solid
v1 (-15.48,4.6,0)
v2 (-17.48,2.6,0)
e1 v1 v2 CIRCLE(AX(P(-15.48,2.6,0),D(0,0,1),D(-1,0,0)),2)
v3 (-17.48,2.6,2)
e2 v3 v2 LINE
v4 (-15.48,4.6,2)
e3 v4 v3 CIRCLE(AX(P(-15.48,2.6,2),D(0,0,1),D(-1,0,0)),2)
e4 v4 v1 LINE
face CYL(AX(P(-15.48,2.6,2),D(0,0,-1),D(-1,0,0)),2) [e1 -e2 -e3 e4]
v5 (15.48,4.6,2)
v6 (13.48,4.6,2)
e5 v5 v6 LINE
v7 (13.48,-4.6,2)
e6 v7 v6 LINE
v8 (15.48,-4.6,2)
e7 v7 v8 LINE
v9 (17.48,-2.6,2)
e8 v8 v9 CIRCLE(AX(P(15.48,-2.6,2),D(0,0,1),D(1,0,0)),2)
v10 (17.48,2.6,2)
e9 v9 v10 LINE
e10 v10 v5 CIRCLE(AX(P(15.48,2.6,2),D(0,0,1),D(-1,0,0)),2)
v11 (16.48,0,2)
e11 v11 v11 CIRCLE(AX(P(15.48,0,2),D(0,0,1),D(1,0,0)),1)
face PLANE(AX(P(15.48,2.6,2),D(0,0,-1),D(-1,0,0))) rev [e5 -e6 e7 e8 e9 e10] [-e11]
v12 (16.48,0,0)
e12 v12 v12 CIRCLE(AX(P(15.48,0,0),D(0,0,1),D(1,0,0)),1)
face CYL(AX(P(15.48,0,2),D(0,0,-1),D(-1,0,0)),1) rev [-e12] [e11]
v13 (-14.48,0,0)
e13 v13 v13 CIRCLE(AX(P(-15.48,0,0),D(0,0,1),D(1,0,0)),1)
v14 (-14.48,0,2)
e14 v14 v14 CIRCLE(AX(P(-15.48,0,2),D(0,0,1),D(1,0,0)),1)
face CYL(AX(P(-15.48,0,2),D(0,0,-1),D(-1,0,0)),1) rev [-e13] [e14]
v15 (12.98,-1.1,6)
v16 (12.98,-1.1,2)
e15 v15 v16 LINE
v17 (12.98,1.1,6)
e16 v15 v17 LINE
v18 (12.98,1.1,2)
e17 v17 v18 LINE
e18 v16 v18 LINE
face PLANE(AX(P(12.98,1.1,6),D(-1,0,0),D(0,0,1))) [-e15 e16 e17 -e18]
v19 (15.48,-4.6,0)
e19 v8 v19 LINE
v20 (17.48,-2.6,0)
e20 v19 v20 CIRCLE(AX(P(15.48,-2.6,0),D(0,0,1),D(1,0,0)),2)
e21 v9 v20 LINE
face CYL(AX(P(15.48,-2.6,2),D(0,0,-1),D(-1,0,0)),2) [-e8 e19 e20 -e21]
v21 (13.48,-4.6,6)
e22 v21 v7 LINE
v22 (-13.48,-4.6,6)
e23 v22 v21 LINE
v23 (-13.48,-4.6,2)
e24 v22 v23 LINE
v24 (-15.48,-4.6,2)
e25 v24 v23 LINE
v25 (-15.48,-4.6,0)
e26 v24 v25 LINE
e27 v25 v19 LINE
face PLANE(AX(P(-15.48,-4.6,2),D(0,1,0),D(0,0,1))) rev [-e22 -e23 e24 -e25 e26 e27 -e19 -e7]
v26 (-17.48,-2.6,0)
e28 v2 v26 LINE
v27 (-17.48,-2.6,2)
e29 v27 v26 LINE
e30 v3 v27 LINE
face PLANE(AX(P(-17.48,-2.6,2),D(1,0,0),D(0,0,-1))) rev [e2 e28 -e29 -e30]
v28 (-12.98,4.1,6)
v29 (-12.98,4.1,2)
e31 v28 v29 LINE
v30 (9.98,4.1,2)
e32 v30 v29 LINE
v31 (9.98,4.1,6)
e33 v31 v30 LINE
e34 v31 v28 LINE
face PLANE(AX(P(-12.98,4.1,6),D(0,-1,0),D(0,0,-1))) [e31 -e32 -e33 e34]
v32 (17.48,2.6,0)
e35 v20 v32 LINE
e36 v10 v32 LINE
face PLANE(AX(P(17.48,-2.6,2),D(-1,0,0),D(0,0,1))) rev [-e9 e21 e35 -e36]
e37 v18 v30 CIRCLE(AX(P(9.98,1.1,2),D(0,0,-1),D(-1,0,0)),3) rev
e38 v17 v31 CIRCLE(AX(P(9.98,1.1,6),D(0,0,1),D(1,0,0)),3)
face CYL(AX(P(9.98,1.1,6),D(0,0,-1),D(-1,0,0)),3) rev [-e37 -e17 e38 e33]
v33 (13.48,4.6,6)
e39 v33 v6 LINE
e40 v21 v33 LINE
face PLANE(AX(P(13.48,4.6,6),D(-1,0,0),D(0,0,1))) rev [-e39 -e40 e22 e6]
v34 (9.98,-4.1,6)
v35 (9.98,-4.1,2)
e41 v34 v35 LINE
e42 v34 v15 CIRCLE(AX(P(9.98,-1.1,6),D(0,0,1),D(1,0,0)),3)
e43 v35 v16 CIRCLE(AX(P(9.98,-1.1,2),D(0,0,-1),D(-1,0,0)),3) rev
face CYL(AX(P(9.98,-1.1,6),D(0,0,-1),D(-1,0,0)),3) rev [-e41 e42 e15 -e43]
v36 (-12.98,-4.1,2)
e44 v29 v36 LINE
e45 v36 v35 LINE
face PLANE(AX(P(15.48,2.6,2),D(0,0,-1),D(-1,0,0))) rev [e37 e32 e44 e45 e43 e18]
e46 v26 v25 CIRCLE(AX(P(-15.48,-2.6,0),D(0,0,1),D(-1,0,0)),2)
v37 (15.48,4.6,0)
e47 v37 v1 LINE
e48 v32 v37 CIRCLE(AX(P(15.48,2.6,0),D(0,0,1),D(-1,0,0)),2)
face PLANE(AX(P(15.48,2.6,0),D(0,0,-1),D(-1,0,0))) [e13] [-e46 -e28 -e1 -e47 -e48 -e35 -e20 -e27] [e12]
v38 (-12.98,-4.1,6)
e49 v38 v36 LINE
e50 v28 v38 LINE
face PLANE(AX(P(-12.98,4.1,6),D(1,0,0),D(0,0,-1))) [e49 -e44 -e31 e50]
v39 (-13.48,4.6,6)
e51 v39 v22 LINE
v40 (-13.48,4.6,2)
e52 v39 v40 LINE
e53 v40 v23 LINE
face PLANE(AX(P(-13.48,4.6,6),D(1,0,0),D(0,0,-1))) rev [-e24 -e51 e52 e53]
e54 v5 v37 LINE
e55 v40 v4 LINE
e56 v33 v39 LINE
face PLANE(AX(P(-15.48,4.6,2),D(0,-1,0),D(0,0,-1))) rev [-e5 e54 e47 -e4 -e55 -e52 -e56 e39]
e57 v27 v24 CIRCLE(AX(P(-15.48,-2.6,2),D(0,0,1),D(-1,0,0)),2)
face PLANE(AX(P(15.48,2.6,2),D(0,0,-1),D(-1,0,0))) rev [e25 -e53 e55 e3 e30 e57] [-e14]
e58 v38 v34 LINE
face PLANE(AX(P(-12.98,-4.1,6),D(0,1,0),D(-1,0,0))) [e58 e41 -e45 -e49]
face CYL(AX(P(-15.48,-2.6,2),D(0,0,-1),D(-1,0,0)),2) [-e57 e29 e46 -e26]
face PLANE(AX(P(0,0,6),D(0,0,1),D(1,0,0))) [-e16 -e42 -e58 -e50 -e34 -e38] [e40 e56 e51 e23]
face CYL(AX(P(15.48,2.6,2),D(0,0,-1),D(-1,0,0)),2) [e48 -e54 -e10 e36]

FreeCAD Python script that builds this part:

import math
import FreeCAD as App
import Part
import Sketcher

V = App.Vector
Q = App.Units.Quantity

doc = App.newDocument("Part")
body = doc.addObject("PartDesign::Body", "Body")

# Sketch on XY plane
sketch1 = body.newObject("Sketcher::SketchObject", "Sketch")
sketch1.AttachmentSupport = (doc.getObject("XY_Plane"), [""])
sketch1.MapMode = "FlatFace"
sketch1.addGeometry(Part.LineSegment(V(-15.5, -4.6, 0), V(15.5, -4.6, 0)), False)
sketch1.addGeometry(Part.ArcOfCircle(Part.Circle(V(15.5, -2.6, 0), V(0, 0, 1), 2), math.radians(-90), math.radians(0)), False)
sketch1.addGeometry(Part.LineSegment(V(17.5, -2.6, 0), V(17.5, 2.6, 0)), False)
sketch1.addGeometry(Part.ArcOfCircle(Part.Circle(V(15.5, 2.6, 0), V(0, 0, 1), 2), math.radians(0), math.radians(90)), False)
sketch1.addGeometry(Part.LineSegment(V(15.5, 4.6, 0), V(-15.5, 4.6, 0)), False)
sketch1.addGeometry(Part.ArcOfCircle(Part.Circle(V(-15.5, 2.6, 0), V(0, 0, 1), 2), math.radians(90), math.radians(180)), False)
sketch1.addGeometry(Part.LineSegment(V(-17.5, 2.6, 0), V(-17.5, -2.6, 0)), False)
sketch1.addGeometry(Part.ArcOfCircle(Part.Circle(V(-15.5, -2.6, 0), V(0, 0, 1), 2), math.radians(-180), math.radians(-90)), False)
sketch1.addGeometry(Part.Circle(V(-15.5, 0, 0), V(0, 0, 1), 1), False)
sketch1.addGeometry(Part.Circle(V(15.5, 0, 0), V(0, 0, 1), 1), False)
sketch1.addConstraint(Sketcher.Constraint("Tangent", 0, 2, 1, 1))
sketch1.addConstraint(Sketcher.Constraint("Tangent", 1, 2, 2, 1))
sketch1.addConstraint(Sketcher.Constraint("Tangent", 2, 2, 3, 1))
sketch1.addConstraint(Sketcher.Constraint("Tangent", 3, 2, 4, 1))
sketch1.addConstraint(Sketcher.Constraint("Tangent", 4, 2, 5, 1))
sketch1.addConstraint(Sketcher.Constraint("Tangent", 5, 2, 6, 1))
sketch1.addConstraint(Sketcher.Constraint("Tangent", 6, 2, 7, 1))
sketch1.addConstraint(Sketcher.Constraint("Tangent", 7, 2, 0, 1))
sketch1.addConstraint(Sketcher.Constraint("Horizontal", 0))
sketch1.addConstraint(Sketcher.Constraint("Vertical", 2))
sketch1.addConstraint(Sketcher.Constraint("Horizontal", 4))
sketch1.addConstraint(Sketcher.Constraint("Vertical", 6))
sketch1.addConstraint(Sketcher.Constraint("Equal", 1, 3))
sketch1.addConstraint(Sketcher.Constraint("Equal", 3, 5))
sketch1.addConstraint(Sketcher.Constraint("Equal", 5, 7))
sketch1.addConstraint(Sketcher.Constraint("Equal", 8, 9))
sketch1.addConstraint(Sketcher.Constraint("Symmetric", 1, 3, 5, 3, -1, 1))
sketch1.addConstraint(Sketcher.Constraint("Symmetric", 8, 3, 9, 3, -1, 1))
sketch1.addConstraint(Sketcher.Constraint("PointOnObject", 8, 3, -1))
sketch1.addConstraint(Sketcher.Constraint("Vertical", 7, 3, 8, 3))
sketch1.addConstraint(Sketcher.Constraint("Diameter", 8, Q("2 mm")))
sketch1.addConstraint(Sketcher.Constraint("Radius", 1, Q("2 mm")))
sketch1.addConstraint(Sketcher.Constraint("DistanceY", 2, 1, 2, 2, Q("5.2 mm")))
sketch1.addConstraint(Sketcher.Constraint("DistanceX", 0, 1, 0, 2, Q("30.96 mm")))
pad1 = body.newObject("PartDesign::Pad", "Pad")
pad1.Profile = sketch1
pad1.Length = 2

# Sketch on XY plane
sketch2 = body.newObject("Sketcher::SketchObject", "Sketch001")
sketch2.AttachmentSupport = (doc.getObject("XY_Plane"), [""])
sketch2.MapMode = "FlatFace"
sketch2.addGeometry(Part.LineSegment(V(-13.5, 4.6, 0), V(-13.5, -4.6, 0)), False)
sketch2.addGeometry(Part.LineSegment(V(-13.5, -4.6, 0), V(13.5, -4.6, 0)), False)
sketch2.addGeometry(Part.LineSegment(V(13.5, -4.6, 0), V(13.5, 4.6, 0)), False)
sketch2.addGeometry(Part.LineSegment(V(13.5, 4.6, 0), V(-13.5, 4.6, 0)), False)
sketch2.addGeometry(Part.LineSegment(V(-13, -4.1, 0), V(-13, 4.1, 0)), False)
sketch2.addGeometry(Part.LineSegment(V(-13, 4.1, 0), V(10, 4.1, 0)), False)
sketch2.addGeometry(Part.ArcOfCircle(Part.Circle(V(10, 1.1, 0), V(0, 0, 1), 3), math.radians(0), math.radians(90)), False)
sketch2.addGeometry(Part.LineSegment(V(13, 1.1, 0), V(13, -1.1, 0)), False)
sketch2.addGeometry(Part.ArcOfCircle(Part.Circle(V(10, -1.1, 0), V(0, 0, 1), 3), math.radians(-90), math.radians(0)), False)
sketch2.addGeometry(Part.LineSegment(V(10, -4.1, 0), V(-13, -4.1, 0)), False)
sketch2.addConstraint(Sketcher.Constraint("Coincident", 0, 2, 1, 1))
sketch2.addConstraint(Sketcher.Constraint("Coincident", 1, 2, 2, 1))
sketch2.addConstraint(Sketcher.Constraint("Coincident", 2, 2, 3, 1))
sketch2.addConstraint(Sketcher.Constraint("Coincident", 3, 2, 0, 1))
sketch2.addConstraint(Sketcher.Constraint("Coincident", 4, 2, 5, 1))
sketch2.addConstraint(Sketcher.Constraint("Tangent", 5, 2, 6, 2))
sketch2.addConstraint(Sketcher.Constraint("Tangent", 6, 1, 7, 1))
sketch2.addConstraint(Sketcher.Constraint("Tangent", 7, 2, 8, 2))
sketch2.addConstraint(Sketcher.Constraint("Tangent", 8, 1, 9, 1))
sketch2.addConstraint(Sketcher.Constraint("Coincident", 9, 2, 4, 1))
sketch2.addConstraint(Sketcher.Constraint("Vertical", 0))
sketch2.addConstraint(Sketcher.Constraint("Horizontal", 1))
sketch2.addConstraint(Sketcher.Constraint("Vertical", 2))
sketch2.addConstraint(Sketcher.Constraint("Horizontal", 3))
sketch2.addConstraint(Sketcher.Constraint("Vertical", 4))
sketch2.addConstraint(Sketcher.Constraint("Horizontal", 5))
sketch2.addConstraint(Sketcher.Constraint("Vertical", 7))
sketch2.addConstraint(Sketcher.Constraint("Horizontal", 9))
sketch2.addConstraint(Sketcher.Constraint("Equal", 6, 8))
sketch2.addConstraint(Sketcher.Constraint("Symmetric", 0, 2, 2, 2, -1, 1))
sketch2.addConstraint(Sketcher.Constraint("Radius", 6, Q("3 mm")))
sketch2.addConstraint(Sketcher.Constraint("DistanceY", 0, 2, 0, 1, Q("9.2 mm")))
sketch2.addConstraint(Sketcher.Constraint("DistanceY", 4, 1, 4, 2, Q("8.2 mm")))
sketch2.addConstraint(Sketcher.Constraint("DistanceX", 1, 1, 1, 2, Q("26.96 mm")))
sketch2.addConstraint(Sketcher.Constraint("DistanceX", 5, 1, 5, 2, Q("22.96 mm")))
sketch2.addConstraint(Sketcher.Constraint("DistanceY", -1, 1, 6, 3, Q("1.1 mm")))
sketch2.addConstraint(Sketcher.Constraint("DistanceX", 8, 3, 1, 2, Q("3.5 mm")))
pad2 = body.newObject("PartDesign::Pad", "Pad001")
pad2.Profile = sketch2
pad2.Length = 6

doc.recompute()
